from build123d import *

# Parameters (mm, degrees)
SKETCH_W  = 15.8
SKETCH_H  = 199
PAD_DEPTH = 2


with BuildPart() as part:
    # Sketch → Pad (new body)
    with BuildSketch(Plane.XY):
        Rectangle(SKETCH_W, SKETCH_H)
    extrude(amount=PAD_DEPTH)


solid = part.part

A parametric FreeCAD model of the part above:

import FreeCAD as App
import Part
import Sketcher
from FreeCAD import Vector


def add_polygon(sketch, points):
    """Adds a closed chain of lines whose ends are joined by coincident constraints."""
    first, n = sketch.GeometryCount, len(points)
    for a, b in zip(points, points[1:] + points[:1]):
        sketch.addGeometry(Part.LineSegment(App.Vector(*a, 0), App.Vector(*b, 0)), False)
    for i in range(n):
        sketch.addConstraint(Sketcher.Constraint("Coincident", first + i, 2, first + (i + 1) % n, 1))

doc = App.newDocument("Part")
body = doc.addObject("PartDesign::Body", "Body")

# Sketch on XY plane
sketch1 = body.newObject("Sketcher::SketchObject", "Sketch")
sketch1.AttachmentSupport = (doc.getObject("XY_Plane"), [""])
sketch1.MapMode = "FlatFace"
add_polygon(sketch1, [(-8, 100), (-8, -100), (8, -100), (8, 100)])  # lines 0-3
sketch1.addConstraint([
    Sketcher.Constraint("Vertical", 0),
    Sketcher.Constraint("Horizontal", 1),
    Sketcher.Constraint("Vertical", 2),
    Sketcher.Constraint("Horizontal", 3),
    Sketcher.Constraint("Symmetric", 0, 2, 2, 2, -1, 1),
    Sketcher.Constraint("DistanceY", 0, 2, 0, 1, 199.0),
    Sketcher.Constraint("DistanceX", 1, 1, 1, 2, 15.8),
])
pad1 = body.newObject("PartDesign::Pad", "Pad")
pad1.Profile = sketch1
pad1.Length = 2

doc.recompute()
